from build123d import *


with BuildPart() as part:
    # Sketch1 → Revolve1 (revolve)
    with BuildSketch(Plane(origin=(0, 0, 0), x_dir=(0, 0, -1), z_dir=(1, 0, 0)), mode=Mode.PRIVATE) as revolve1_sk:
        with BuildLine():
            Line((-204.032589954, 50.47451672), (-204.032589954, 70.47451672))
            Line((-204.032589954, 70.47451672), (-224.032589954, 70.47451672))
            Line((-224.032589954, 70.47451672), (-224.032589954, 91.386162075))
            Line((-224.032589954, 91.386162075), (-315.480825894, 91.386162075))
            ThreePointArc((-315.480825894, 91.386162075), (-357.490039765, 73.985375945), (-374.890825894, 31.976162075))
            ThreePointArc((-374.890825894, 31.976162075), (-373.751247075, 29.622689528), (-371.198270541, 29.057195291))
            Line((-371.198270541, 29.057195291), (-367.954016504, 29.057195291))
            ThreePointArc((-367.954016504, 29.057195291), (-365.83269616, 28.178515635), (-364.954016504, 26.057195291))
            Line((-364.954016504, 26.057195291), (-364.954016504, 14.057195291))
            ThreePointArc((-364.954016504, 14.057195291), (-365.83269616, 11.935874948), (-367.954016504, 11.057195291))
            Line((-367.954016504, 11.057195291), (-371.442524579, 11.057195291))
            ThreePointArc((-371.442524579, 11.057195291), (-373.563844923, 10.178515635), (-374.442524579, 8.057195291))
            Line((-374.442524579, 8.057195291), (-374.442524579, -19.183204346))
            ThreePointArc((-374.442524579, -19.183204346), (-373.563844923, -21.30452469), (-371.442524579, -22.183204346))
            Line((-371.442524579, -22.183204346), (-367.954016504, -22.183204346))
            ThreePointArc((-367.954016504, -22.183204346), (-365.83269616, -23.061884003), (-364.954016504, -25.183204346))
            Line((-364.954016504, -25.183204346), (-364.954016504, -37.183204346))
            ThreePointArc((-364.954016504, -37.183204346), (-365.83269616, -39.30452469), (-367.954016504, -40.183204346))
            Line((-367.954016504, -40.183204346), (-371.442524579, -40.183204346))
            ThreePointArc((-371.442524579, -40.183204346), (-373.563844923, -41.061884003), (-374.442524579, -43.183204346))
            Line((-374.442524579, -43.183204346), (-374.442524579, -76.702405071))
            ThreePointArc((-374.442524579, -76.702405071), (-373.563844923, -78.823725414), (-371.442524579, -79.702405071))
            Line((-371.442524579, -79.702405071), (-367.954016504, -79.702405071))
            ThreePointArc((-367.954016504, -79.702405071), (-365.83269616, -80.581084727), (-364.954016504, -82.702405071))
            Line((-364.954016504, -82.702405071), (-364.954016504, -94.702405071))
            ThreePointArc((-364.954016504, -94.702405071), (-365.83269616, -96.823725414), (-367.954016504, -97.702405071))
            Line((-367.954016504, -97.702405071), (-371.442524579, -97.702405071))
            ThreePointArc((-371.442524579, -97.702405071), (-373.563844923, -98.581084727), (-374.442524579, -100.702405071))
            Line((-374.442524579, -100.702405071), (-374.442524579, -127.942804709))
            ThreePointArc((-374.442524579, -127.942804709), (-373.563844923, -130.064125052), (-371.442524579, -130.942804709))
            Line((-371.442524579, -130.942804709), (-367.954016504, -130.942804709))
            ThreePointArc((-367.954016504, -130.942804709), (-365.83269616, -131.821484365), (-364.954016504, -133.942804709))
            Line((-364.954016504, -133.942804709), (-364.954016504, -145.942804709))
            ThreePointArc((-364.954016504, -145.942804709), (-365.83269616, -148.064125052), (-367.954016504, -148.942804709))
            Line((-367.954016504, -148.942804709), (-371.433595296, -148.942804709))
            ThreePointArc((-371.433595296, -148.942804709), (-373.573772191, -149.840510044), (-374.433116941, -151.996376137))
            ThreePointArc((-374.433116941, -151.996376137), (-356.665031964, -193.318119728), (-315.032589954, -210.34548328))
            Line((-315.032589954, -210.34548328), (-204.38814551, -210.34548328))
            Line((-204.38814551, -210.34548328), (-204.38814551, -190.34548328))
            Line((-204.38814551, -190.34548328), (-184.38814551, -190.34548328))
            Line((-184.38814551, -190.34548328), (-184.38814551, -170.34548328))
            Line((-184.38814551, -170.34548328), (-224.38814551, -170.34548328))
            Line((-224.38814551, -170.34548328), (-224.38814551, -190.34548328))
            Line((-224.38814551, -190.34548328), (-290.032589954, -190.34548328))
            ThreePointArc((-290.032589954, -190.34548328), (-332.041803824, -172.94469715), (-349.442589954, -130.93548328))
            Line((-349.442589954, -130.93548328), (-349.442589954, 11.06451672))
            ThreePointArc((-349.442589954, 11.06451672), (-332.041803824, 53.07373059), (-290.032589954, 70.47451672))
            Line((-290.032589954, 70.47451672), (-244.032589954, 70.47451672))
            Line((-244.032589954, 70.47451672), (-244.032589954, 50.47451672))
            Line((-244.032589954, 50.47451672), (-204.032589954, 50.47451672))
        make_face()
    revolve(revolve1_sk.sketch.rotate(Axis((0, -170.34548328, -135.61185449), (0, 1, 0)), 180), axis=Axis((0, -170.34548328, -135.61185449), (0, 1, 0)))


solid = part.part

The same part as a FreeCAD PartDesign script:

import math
import FreeCAD as App
import Part
import Sketcher

V = App.Vector
Q = App.Units.Quantity

doc = App.newDocument("Part")
params = doc.addObject("Spreadsheet::Sheet", "Params")
for row, (alias, value) in enumerate([
    ("sketch1_radius", "3 mm"),
    ("sketch1_width", "20 mm"),
    ("sketch1_width2", "12 mm"),
    ("sketch1_width3", "142 mm"),
    ("sketch1_height", "40 mm"),
    ("revolution_angle", "360 deg"),
], start=1):
    params.set(f"A{row}", alias)
    params.set(f"B{row}", "=" + value)
    params.setAlias(f"B{row}", alias)

body = doc.addObject("PartDesign::Body", "Body")

# Sketch on YZ plane
sketch1 = body.newObject("Sketcher::SketchObject", "Sketch")
sketch1.AttachmentSupport = (doc.getObject("YZ_Plane"), [""])
sketch1.MapMode = "FlatFace"
sketch1.addGeometry(Part.LineSegment(V(50.5, 204, 0), V(70.5, 204, 0)), False)
sketch1.addGeometry(Part.LineSegment(V(70.5, 204, 0), V(70.5, 224, 0)), False)
sketch1.addGeometry(Part.LineSegment(V(70.5, 224, 0), V(91.4, 224, 0)), False)
sketch1.addGeometry(Part.LineSegment(V(91.4, 224, 0), V(91.4, 315.5, 0)), False)
sketch1.addGeometry(Part.ArcOfCircle(Part.Circle(V(32, 315.5, 0), V(0, 0, 1), 59.4), math.radians(0), math.radians(90)), False)
sketch1.addGeometry(Part.ArcOfCircle(Part.Circle(V(32, 371.9, 0), V(0, 0, 1), 3), math.radians(90), math.radians(193)), False)
sketch1.addGeometry(Part.LineSegment(V(29.1, 371.2, 0), V(29.1, 368, 0)), False)
sketch1.addGeometry(Part.ArcOfCircle(Part.Circle(V(26.1, 368, 0), V(0, 0, 1), 3), math.radians(-90), math.radians(0)), False)
sketch1.addGeometry(Part.LineSegment(V(26.1, 365, 0), V(14.1, 365, 0)), False)
sketch1.addGeometry(Part.ArcOfCircle(Part.Circle(V(14.1, 368, 0), V(0, 0, 1), 3), math.radians(180), math.radians(270)), False)
sketch1.addGeometry(Part.LineSegment(V(11.1, 368, 0), V(11.1, 371.4, 0)), False)
sketch1.addGeometry(Part.ArcOfCircle(Part.Circle(V(8.1, 371.4, 0), V(0, 0, 1), 3), math.radians(0), math.radians(90)), False)
sketch1.addGeometry(Part.LineSegment(V(8.1, 374.4, 0), V(-19.2, 374.4, 0)), False)
sketch1.addGeometry(Part.ArcOfCircle(Part.Circle(V(-19.2, 371.4, 0), V(0, 0, 1), 3), math.radians(90), math.radians(180)), False)
sketch1.addGeometry(Part.LineSegment(V(-22.2, 371.4, 0), V(-22.2, 368, 0)), False)
sketch1.addGeometry(Part.ArcOfCircle(Part.Circle(V(-25.2, 368, 0), V(0, 0, 1), 3), math.radians(-90), math.radians(0)), False)
sketch1.addGeometry(Part.LineSegment(V(-25.2, 365, 0), V(-37.2, 365, 0)), False)
sketch1.addGeometry(Part.ArcOfCircle(Part.Circle(V(-37.2, 368, 0), V(0, 0, 1), 3), math.radians(180), math.radians(270)), False)
sketch1.addGeometry(Part.LineSegment(V(-40.2, 368, 0), V(-40.2, 371.4, 0)), False)
sketch1.addGeometry(Part.ArcOfCircle(Part.Circle(V(-43.2, 371.4, 0), V(0, 0, 1), 3), math.radians(0), math.radians(90)), False)
sketch1.addGeometry(Part.LineSegment(V(-43.2, 374.4, 0), V(-76.7, 374.4, 0)), False)
sketch1.addGeometry(Part.ArcOfCircle(Part.Circle(V(-76.7, 371.4, 0), V(0, 0, 1), 3), math.radians(90), math.radians(180)), False)
sketch1.addGeometry(Part.LineSegment(V(-79.7, 371.4, 0), V(-79.7, 368, 0)), False)
sketch1.addGeometry(Part.ArcOfCircle(Part.Circle(V(-82.7, 368, 0), V(0, 0, 1), 3), math.radians(-90), math.radians(0)), False)
sketch1.addGeometry(Part.LineSegment(V(-82.7, 365, 0), V(-94.7, 365, 0)), False)
sketch1.addGeometry(Part.ArcOfCircle(Part.Circle(V(-94.7, 368, 0), V(0, 0, 1), 3), math.radians(180), math.radians(270)), False)
sketch1.addGeometry(Part.LineSegment(V(-97.7, 368, 0), V(-97.7, 371.4, 0)), False)
sketch1.addGeometry(Part.ArcOfCircle(Part.Circle(V(-100.7, 371.4, 0), V(0, 0, 1), 3), math.radians(0), math.radians(90)), False)
sketch1.addGeometry(Part.LineSegment(V(-100.7, 374.4, 0), V(-127.9, 374.4, 0)), False)
sketch1.addGeometry(Part.ArcOfCircle(Part.Circle(V(-127.9, 371.4, 0), V(0, 0, 1), 3), math.radians(90), math.radians(180)), False)
sketch1.addGeometry(Part.LineSegment(V(-130.9, 371.4, 0), V(-130.9, 368, 0)), False)
sketch1.addGeometry(Part.ArcOfCircle(Part.Circle(V(-133.9, 368, 0), V(0, 0, 1), 3), math.radians(-90), math.radians(0)), False)
sketch1.addGeometry(Part.LineSegment(V(-133.9, 365, 0), V(-145.9, 365, 0)), False)
sketch1.addGeometry(Part.ArcOfCircle(Part.Circle(V(-145.9, 368, 0), V(0, 0, 1), 3), math.radians(180), math.radians(270)), False)
sketch1.addGeometry(Part.LineSegment(V(-148.9, 368, 0), V(-148.9, 371.4, 0)), False)
sketch1.addGeometry(Part.ArcOfCircle(Part.Circle(V(-151.9, 371.4, 0), V(0, 0, 1), 3), math.radians(0), math.radians(91)), False)
sketch1.addGeometry(Part.ArcOfCircle(Part.Circle(V(-150.9, 315, 0), V(0, 0, 1), 59.4), math.radians(91), math.radians(180)), False)
sketch1.addGeometry(Part.LineSegment(V(-210.3, 315, 0), V(-210.3, 204.4, 0)), False)
sketch1.addGeometry(Part.LineSegment(V(-210.3, 204.4, 0), V(-190.3, 204.4, 0)), False)
sketch1.addGeometry(Part.LineSegment(V(-190.3, 204.4, 0), V(-190.3, 184.4, 0)), False)
sketch1.addGeometry(Part.LineSegment(V(-190.3, 184.4, 0), V(-170.3, 184.4, 0)), False)
sketch1.addGeometry(Part.LineSegment(V(-170.3, 184.4, 0), V(-170.3, 224.4, 0)), False)
sketch1.addGeometry(Part.LineSegment(V(-170.3, 224.4, 0), V(-190.3, 224.4, 0)), False)
sketch1.addGeometry(Part.LineSegment(V(-190.3, 224.4, 0), V(-190.3, 290, 0)), False)
sketch1.addGeometry(Part.ArcOfCircle(Part.Circle(V(-130.9, 290, 0), V(0, 0, 1), 59.4), math.radians(90), math.radians(180)), False)
sketch1.addGeometry(Part.LineSegment(V(-130.9, 349.4, 0), V(11.1, 349.4, 0)), False)
sketch1.addGeometry(Part.ArcOfCircle(Part.Circle(V(11.1, 290, 0), V(0, 0, 1), 59.4), math.radians(0), math.radians(90)), False)
sketch1.addGeometry(Part.LineSegment(V(70.5, 290, 0), V(70.5, 244, 0)), False)
sketch1.addGeometry(Part.LineSegment(V(70.5, 244, 0), V(50.5, 244, 0)), False)
sketch1.addGeometry(Part.LineSegment(V(50.5, 244, 0), V(50.5, 204, 0)), False)
sketch1.addGeometry(Part.LineSegment(V(-210.3, -135.6, 0), V(91.4, -135.6, 0)), True)  # axis
sketch1.addConstraint(Sketcher.Constraint("Coincident", 0, 2, 1, 1))
sketch1.addConstraint(Sketcher.Constraint("Coincident", 1, 2, 2, 1))
sketch1.addConstraint(Sketcher.Constraint("Coincident", 2, 2, 3, 1))
sketch1.addConstraint(Sketcher.Constraint("Tangent", 3, 2, 4, 1))
sketch1.addConstraint(Sketcher.Constraint("Tangent", 4, 2, 5, 1))
sketch1.addConstraint(Sketcher.Constraint("Coincident", 5, 2, 6, 1))
sketch1.addConstraint(Sketcher.Constraint("Tangent", 6, 2, 7, 2))
sketch1.addConstraint(Sketcher.Constraint("Tangent", 7, 1, 8, 1))
sketch1.addConstraint(Sketcher.Constraint("Tangent", 8, 2, 9, 2))
sketch1.addConstraint(Sketcher.Constraint("Tangent", 9, 1, 10, 1))
sketch1.addConstraint(Sketcher.Constraint("Tangent", 10, 2, 11, 1))
sketch1.addConstraint(Sketcher.Constraint("Tangent", 11, 2, 12, 1))
sketch1.addConstraint(Sketcher.Constraint("Tangent", 12, 2, 13, 1))
sketch1.addConstraint(Sketcher.Constraint("Tangent", 13, 2, 14, 1))
sketch1.addConstraint(Sketcher.Constraint("Tangent", 14, 2, 15, 2))
sketch1.addConstraint(Sketcher.Constraint("Tangent", 15, 1, 16, 1))
sketch1.addConstraint(Sketcher.Constraint("Tangent", 16, 2, 17, 2))
sketch1.addConstraint(Sketcher.Constraint("Tangent", 17, 1, 18, 1))
sketch1.addConstraint(Sketcher.Constraint("Tangent", 18, 2, 19, 1))
sketch1.addConstraint(Sketcher.Constraint("Tangent", 19, 2, 20, 1))
sketch1.addConstraint(Sketcher.Constraint("Tangent", 20, 2, 21, 1))
sketch1.addConstraint(Sketcher.Constraint("Tangent", 21, 2, 22, 1))
sketch1.addConstraint(Sketcher.Constraint("Tangent", 22, 2, 23, 2))
sketch1.addConstraint(Sketcher.Constraint("Tangent", 23, 1, 24, 1))
sketch1.addConstraint(Sketcher.Constraint("Tangent", 24, 2, 25, 2))
sketch1.addConstraint(Sketcher.Constraint("Tangent", 25, 1, 26, 1))
sketch1.addConstraint(Sketcher.Constraint("Tangent", 26, 2, 27, 1))
sketch1.addConstraint(Sketcher.Constraint("Tangent", 27, 2, 28, 1))
sketch1.addConstraint(Sketcher.Constraint("Tangent", 28, 2, 29, 1))
sketch1.addConstraint(Sketcher.Constraint("Tangent", 29, 2, 30, 1))
sketch1.addConstraint(Sketcher.Constraint("Tangent", 30, 2, 31, 2))
sketch1.addConstraint(Sketcher.Constraint("Tangent", 31, 1, 32, 1))
sketch1.addConstraint(Sketcher.Constraint("Tangent", 32, 2, 33, 2))
sketch1.addConstraint(Sketcher.Constraint("Tangent", 33, 1, 34, 1))
sketch1.addConstraint(Sketcher.Constraint("Tangent", 34, 2, 35, 1))
sketch1.addConstraint(Sketcher.Constraint("Tangent", 35, 2, 36, 1))
sketch1.addConstraint(Sketcher.Constraint("Tangent", 36, 2, 37, 1))
sketch1.addConstraint(Sketcher.Constraint("Coincident", 37, 2, 38, 1))
sketch1.addConstraint(Sketcher.Constraint("Coincident", 38, 2, 39, 1))
sketch1.addConstraint(Sketcher.Constraint("Coincident", 39, 2, 40, 1))
sketch1.addConstraint(Sketcher.Constraint("Coincident", 40, 2, 41, 1))
sketch1.addConstraint(Sketcher.Constraint("Coincident", 41, 2, 42, 1))
sketch1.addConstraint(Sketcher.Constraint("Coincident", 42, 2, 43, 1))
sketch1.addConstraint(Sketcher.Constraint("Tangent", 43, 2, 44, 2))
sketch1.addConstraint(Sketcher.Constraint("Tangent", 44, 1, 45, 1))
sketch1.addConstraint(Sketcher.Constraint("Tangent", 45, 2, 46, 2))
sketch1.addConstraint(Sketcher.Constraint("Tangent", 46, 1, 47, 1))
sketch1.addConstraint(Sketcher.Constraint("Coincident", 47, 2, 48, 1))
sketch1.addConstraint(Sketcher.Constraint("Coincident", 48, 2, 49, 1))
sketch1.addConstraint(Sketcher.Constraint("Coincident", 49, 2, 0, 1))
sketch1.addConstraint(Sketcher.Constraint("Horizontal", 0))
sketch1.addConstraint(Sketcher.Constraint("Vertical", 1))
sketch1.addConstraint(Sketcher.Constraint("Horizontal", 2))
sketch1.addConstraint(Sketcher.Constraint("Vertical", 3))
sketch1.addConstraint(Sketcher.Constraint("Vertical", 6))
sketch1.addConstraint(Sketcher.Constraint("Horizontal", 8))
sketch1.addConstraint(Sketcher.Constraint("Vertical", 10))
sketch1.addConstraint(Sketcher.Constraint("Horizontal", 12))
sketch1.addConstraint(Sketcher.Constraint("Vertical", 14))
sketch1.addConstraint(Sketcher.Constraint("Horizontal", 16))
sketch1.addConstraint(Sketcher.Constraint("Vertical", 18))
sketch1.addConstraint(Sketcher.Constraint("Horizontal", 20))
sketch1.addConstraint(Sketcher.Constraint("Vertical", 22))
sketch1.addConstraint(Sketcher.Constraint("Horizontal", 24))
sketch1.addConstraint(Sketcher.Constraint("Vertical", 26))
sketch1.addConstraint(Sketcher.Constraint("Horizontal", 28))
sketch1.addConstraint(Sketcher.Constraint("Vertical", 30))
sketch1.addConstraint(Sketcher.Constraint("Horizontal", 32))
sketch1.addConstraint(Sketcher.Constraint("Vertical", 34))
sketch1.addConstraint(Sketcher.Constraint("Vertical", 37))
sketch1.addConstraint(Sketcher.Constraint("Horizontal", 38))
sketch1.addConstraint(Sketcher.Constraint("Vertical", 39))
sketch1.addConstraint(Sketcher.Constraint("Horizontal", 40))
sketch1.addConstraint(Sketcher.Constraint("Vertical", 41))
sketch1.addConstraint(Sketcher.Constraint("Horizontal", 42))
sketch1.addConstraint(Sketcher.Constraint("Vertical", 43))
sketch1.addConstraint(Sketcher.Constraint("Horizontal", 45))
sketch1.addConstraint(Sketcher.Constraint("Vertical", 47))
sketch1.addConstraint(Sketcher.Constraint("Horizontal", 48))
sketch1.addConstraint(Sketcher.Constraint("Vertical", 49))
sketch1.addConstraint(Sketcher.Constraint("Horizontal", 50))
sketch1.addConstraint(Sketcher.Constraint("Equal", 5, 7))
sketch1.addConstraint(Sketcher.Constraint("Equal", 7, 9))
sketch1.addConstraint(Sketcher.Constraint("Equal", 9, 11))
sketch1.addConstraint(Sketcher.Constraint("Equal", 11, 13))
sketch1.addConstraint(Sketcher.Constraint("Equal", 13, 15))
sketch1.addConstraint(Sketcher.Constraint("Equal", 15, 17))
sketch1.addConstraint(Sketcher.Constraint("Equal", 17, 19))
sketch1.addConstraint(Sketcher.Constraint("Equal", 19, 21))
sketch1.addConstraint(Sketcher.Constraint("Equal", 21, 23))
sketch1.addConstraint(Sketcher.Constraint("Equal", 23, 25))
sketch1.addConstraint(Sketcher.Constraint("Equal", 25, 27))
sketch1.addConstraint(Sketcher.Constraint("Equal", 27, 29))
sketch1.addConstraint(Sketcher.Constraint("Equal", 29, 31))
sketch1.addConstraint(Sketcher.Constraint("Equal", 31, 33))
sketch1.addConstraint(Sketcher.Constraint("Equal", 33, 35))
sketch1.addConstraint(Sketcher.Constraint("Equal", 4, 36))
sketch1.addConstraint(Sketcher.Constraint("Equal", 36, 44))
sketch1.addConstraint(Sketcher.Constraint("Equal", 44, 46))
sketch1.addConstraint(Sketcher.Constraint("Horizontal", 9, 3, 15, 3))
sketch1.addConstraint(Sketcher.Constraint("Horizontal", 13, 3, 19, 3))
sketch1.addConstraint(Sketcher.Constraint("Horizontal", 17, 3, 23, 3))
sketch1.addConstraint(Sketcher.Constraint("Horizontal", 21, 3, 27, 3))
sketch1.addConstraint(Sketcher.Constraint("Horizontal", 25, 3, 31, 3))
sketch1.addConstraint(Sketcher.Constraint("Vertical", 4, 3, 5, 3))
sketch1.addConstraint(Sketcher.Constraint("Vertical", 39, 2, 42, 2))
sketch1.addConstraint(Sketcher.Constraint("Vertical", 1, 2, 46, 1))
sketch1.addConstraint(Sketcher.Constraint("Vertical", 37, 2, 50, 1))
sketch1.addConstraint(Sketcher.Constraint("Vertical", 3, 2, 50, 2))
sketch1.addConstraint(Sketcher.Constraint("Equal", 8, 16))
sketch1.addConstraint(Sketcher.Constraint("Equal", 16, 24))
sketch1.addConstraint(Sketcher.Constraint("Equal", 12, 28))
sketch1.addConstraint(Sketcher.Constraint("Equal", 24, 32))
sketch1.addConstraint(Sketcher.Constraint("Equal", 0, 38))
sketch1.addConstraint(Sketcher.Constraint("Equal", 38, 40))
sketch1.addConstraint(Sketcher.Constraint("Equal", 48, 1))
sketch1.addConstraint(Sketcher.Constraint("Equal", 1, 39))
sketch1.addConstraint(Sketcher.Constraint("Equal", 41, 49))
sketch1.addConstraint(Sketcher.Constraint("Radius", 5, Q("3 mm")))
sketch1.addConstraint(Sketcher.Constraint("DistanceX", 0, 1, 0, 2, Q("20 mm")))
sketch1.addConstraint(Sketcher.Constraint("DistanceX", 8, 2, 8, 1, Q("12 mm")))
sketch1.addConstraint(Sketcher.Constraint("DistanceX", 45, 1, 45, 2, Q("142 mm")))
sketch1.addConstraint(Sketcher.Constraint("DistanceY", 41, 1, 41, 2, Q("40 mm")))
sketch1.addConstraint(Sketcher.Constraint("DistanceY", 47, 2, 47, 1, Q("46 mm")))
sketch1.addConstraint(Sketcher.Constraint("Radius", 4, Q("59.41 mm")))
sketch1.addConstraint(Sketcher.Constraint("DistanceX", 12, 2, 12, 1, Q("27.2404 mm")))
sketch1.addConstraint(Sketcher.Constraint("DistanceX", 20, 2, 20, 1, Q("33.519201 mm")))
sketch1.addConstraint(Sketcher.Constraint("DistanceY", 10, 1, 10, 2, Q("3.488508 mm")))
sketch1.addConstraint(Sketcher.Constraint("DistanceY", 34, 1, 34, 2, Q("3.479579 mm")))
sketch1.addConstraint(Sketcher.Constraint("DistanceX", 2, 1, 2, 2, Q("20.911645 mm")))
sketch1.addConstraint(Sketcher.Constraint("DistanceY", 3, 1, 3, 2, Q("91.448236 mm")))
sketch1.addConstraint(Sketcher.Constraint("DistanceY", 6, 2, 6, 1, Q("3.244254 mm")))
sketch1.addConstraint(Sketcher.Constraint("DistanceY", 37, 2, 37, 1, Q("110.644444 mm")))
sketch1.addConstraint(Sketcher.Constraint("DistanceY", 43, 1, 43, 2, Q("65.644444 mm")))
sketch1.addConstraint(Sketcher.Constraint("DistanceY", -1, 1, 36, 3, Q("315.03259 mm")))
sketch1.addConstraint(Sketcher.Constraint("DistanceX", -1, 1, 4, 3, Q("31.976162 mm")))
sketch1.addConstraint(Sketcher.Constraint("DistanceY", 50, 1, -1, 1, Q("135.611854 mm")))
sketch1.setExpression("Constraints[118]", "Params.sketch1_radius")
sketch1.setExpression("Constraints[119]", "Params.sketch1_width")
sketch1.setExpression("Constraints[120]", "Params.sketch1_width2")
sketch1.setExpression("Constraints[121]", "Params.sketch1_width3")
sketch1.setExpression("Constraints[122]", "Params.sketch1_height")
revolution = body.newObject("PartDesign::Revolution", "Revolution")
revolution.Profile = sketch1
revolution.ReferenceAxis = (sketch1, ["Axis0"])
revolution.setExpression("Angle", "Params.revolution_angle")

doc.recompute()
